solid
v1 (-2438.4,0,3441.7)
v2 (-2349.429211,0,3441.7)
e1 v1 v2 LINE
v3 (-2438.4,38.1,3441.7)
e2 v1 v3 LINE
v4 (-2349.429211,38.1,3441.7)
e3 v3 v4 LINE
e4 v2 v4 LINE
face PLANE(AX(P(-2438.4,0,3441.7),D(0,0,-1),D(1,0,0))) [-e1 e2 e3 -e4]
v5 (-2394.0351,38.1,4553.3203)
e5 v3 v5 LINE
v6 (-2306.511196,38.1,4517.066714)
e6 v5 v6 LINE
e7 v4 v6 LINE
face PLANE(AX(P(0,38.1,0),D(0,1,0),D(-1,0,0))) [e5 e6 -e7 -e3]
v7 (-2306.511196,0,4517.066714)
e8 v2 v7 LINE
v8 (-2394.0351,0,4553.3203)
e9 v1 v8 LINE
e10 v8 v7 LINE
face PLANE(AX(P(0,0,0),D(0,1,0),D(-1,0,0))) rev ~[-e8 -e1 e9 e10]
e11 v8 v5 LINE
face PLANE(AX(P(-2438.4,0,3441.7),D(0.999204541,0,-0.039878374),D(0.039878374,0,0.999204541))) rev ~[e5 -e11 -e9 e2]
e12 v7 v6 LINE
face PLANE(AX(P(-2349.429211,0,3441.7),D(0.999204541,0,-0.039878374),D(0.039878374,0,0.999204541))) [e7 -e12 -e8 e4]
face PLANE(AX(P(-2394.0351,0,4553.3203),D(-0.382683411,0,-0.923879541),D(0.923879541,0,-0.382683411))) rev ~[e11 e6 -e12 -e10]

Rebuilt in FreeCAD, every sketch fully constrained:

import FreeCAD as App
import Part
import Sketcher

V = App.Vector
Q = App.Units.Quantity


def add_polygon(sketch, points):
    """Adds a closed chain of lines whose ends are joined by coincident constraints."""
    first, n = sketch.GeometryCount, len(points)
    for a, b in zip(points, points[1:] + points[:1]):
        sketch.addGeometry(Part.LineSegment(App.Vector(*a, 0), App.Vector(*b, 0)), False)
    for i in range(n):
        sketch.addConstraint(Sketcher.Constraint("Coincident", first + i, 2, first + (i + 1) % n, 1))

doc = App.newDocument("Part")
body = doc.addObject("PartDesign::Body", "Body")

sketch1 = body.newObject("Sketcher::SketchObject", "Sketch")
sketch1.AttachmentSupport = (doc.getObject("XZ_Plane"), [""])
sketch1.MapMode = "FlatFace"
add_polygon(sketch1, [(-2349.429211, 3441.7), (-2438.4, 3441.7), (-2394.0351, 4553.3203), (-2306.511196, 4517.066714)])
sketch1.addConstraint([
    Sketcher.Constraint("Horizontal", 0),
    Sketcher.Constraint("DistanceX", 0, 2, -1, 1, Q("96 in")),
    Sketcher.Constraint("DistanceY", -1, 1, 0, 2, Q("135.5 in")),
    Sketcher.Constraint("DistanceX", 0, 2, 0, 1, 88.9708),
    Sketcher.Constraint("DistanceY", 2, 2, 1, 2, Q("1.4273 in")),
    Sketcher.Constraint("Distance", 1, 1112.5053),
    Sketcher.Constraint("Distance", 2, 94.7352),
    Sketcher.Constraint("DistanceX", 1, 2, -1, 1, 2394.035),
])
pad1 = body.newObject("PartDesign::Pad", "Pad")
pad1.Profile = sketch1
pad1.Length = Q("1.5 in")
pad1.Reversed = True

doc.recompute()
